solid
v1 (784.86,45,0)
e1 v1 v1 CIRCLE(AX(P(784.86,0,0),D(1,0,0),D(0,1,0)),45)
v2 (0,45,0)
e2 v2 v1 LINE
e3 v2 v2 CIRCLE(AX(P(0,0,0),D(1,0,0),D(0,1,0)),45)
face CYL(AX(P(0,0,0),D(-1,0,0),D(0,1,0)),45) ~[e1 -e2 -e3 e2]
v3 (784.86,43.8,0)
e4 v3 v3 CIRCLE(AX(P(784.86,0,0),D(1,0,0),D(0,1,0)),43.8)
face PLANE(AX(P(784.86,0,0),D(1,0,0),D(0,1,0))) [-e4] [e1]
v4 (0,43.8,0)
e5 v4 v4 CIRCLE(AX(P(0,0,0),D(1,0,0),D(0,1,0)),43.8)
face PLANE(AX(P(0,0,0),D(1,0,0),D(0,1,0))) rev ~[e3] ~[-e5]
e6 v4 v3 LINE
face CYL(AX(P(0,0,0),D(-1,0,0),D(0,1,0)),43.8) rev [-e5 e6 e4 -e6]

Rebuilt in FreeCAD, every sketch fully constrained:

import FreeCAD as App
import Part
import Sketcher

V = App.Vector

doc = App.newDocument("Part")
body = doc.addObject("PartDesign::Body", "Body")

sketch1 = body.newObject("Sketcher::SketchObject", "Sketch")
sketch1.AttachmentSupport = (doc.getObject("YZ_Plane"), [""])
sketch1.MapMode = "FlatFace"
sketch1.addGeometry([
    Part.Circle(V(0, 0, 0), V(0, 0, 1), 45),
    Part.Circle(V(0, 0, 0), V(0, 0, 1), 44),
], False)
sketch1.addConstraint([
    Sketcher.Constraint("Coincident", 0, 3, -1, 1),
    Sketcher.Constraint("Coincident", 1, 3, -1, 1),
    Sketcher.Constraint("Diameter", 0, 90.0),
    Sketcher.Constraint("Diameter", 1, 87.6),
])
pad1 = body.newObject("PartDesign::Pad", "Pad")
pad1.Profile = sketch1
pad1.Length = 784.86

doc.recompute()
